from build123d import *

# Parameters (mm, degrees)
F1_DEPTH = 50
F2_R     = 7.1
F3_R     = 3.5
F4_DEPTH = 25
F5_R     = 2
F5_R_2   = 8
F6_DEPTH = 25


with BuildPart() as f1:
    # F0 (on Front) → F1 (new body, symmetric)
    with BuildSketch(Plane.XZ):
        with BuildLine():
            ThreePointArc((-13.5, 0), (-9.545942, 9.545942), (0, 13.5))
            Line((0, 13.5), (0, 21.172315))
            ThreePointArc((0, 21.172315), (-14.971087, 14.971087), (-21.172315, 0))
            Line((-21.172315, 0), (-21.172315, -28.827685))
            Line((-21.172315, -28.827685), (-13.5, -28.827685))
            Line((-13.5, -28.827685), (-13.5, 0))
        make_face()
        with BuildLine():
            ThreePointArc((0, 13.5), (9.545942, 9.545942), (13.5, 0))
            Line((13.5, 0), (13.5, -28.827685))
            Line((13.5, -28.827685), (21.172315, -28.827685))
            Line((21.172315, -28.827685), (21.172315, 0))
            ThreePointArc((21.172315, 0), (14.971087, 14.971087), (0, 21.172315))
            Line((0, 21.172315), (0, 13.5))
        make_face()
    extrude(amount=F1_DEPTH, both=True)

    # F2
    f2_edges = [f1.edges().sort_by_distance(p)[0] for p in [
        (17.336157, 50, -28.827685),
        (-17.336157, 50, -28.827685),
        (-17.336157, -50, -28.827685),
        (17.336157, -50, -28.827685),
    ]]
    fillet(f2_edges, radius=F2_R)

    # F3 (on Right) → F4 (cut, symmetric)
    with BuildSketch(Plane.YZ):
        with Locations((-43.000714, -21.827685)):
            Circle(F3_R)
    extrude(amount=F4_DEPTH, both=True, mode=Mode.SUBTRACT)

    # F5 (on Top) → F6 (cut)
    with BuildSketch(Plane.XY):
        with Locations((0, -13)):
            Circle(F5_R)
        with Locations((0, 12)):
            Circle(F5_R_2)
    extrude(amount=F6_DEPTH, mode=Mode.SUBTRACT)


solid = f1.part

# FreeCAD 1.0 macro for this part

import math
import FreeCAD as App
import Part
import Sketcher
from FreeCAD import Vector
Q = App.Units.Quantity


def edges_at(feature, points):
    """Names of the edges that pass closest to the given points."""
    edges = feature.Shape.Edges
    near = lambda p: min(range(len(edges)), key=lambda i: edges[i].distToShape(Part.Vertex(*p))[0])
    return sorted({f"Edge{near(p) + 1}" for p in points})

doc = App.newDocument("Part")
body = doc.addObject("PartDesign::Body", "Body")

# Sketch on XZ plane
sketch1 = doc.addObject("Sketcher::SketchObject", "Sketch")
body.addObject(sketch1)
sketch1.AttachmentSupport = (doc.XZ_Plane, [""])
sketch1.MapMode = "FlatFace"
sketch1.addGeometry(Part.ArcOfCircle(Part.Circle(Vector(-0.000002, 0.000002, 0), Vector(0, 0, 1), 13.499998), math.radians(89.999993), math.radians(180.000007)), False)
sketch1.addGeometry(Part.ArcOfCircle(Part.Circle(Vector(0.000002, 0.000002, 0), Vector(0, 0, 1), 13.499998), math.radians(-0.000007), math.radians(90.000007)), False)
sketch1.addGeometry(Part.LineSegment(Vector(13.5, 0, 0), Vector(13.5, -28.827685, 0)), False)
sketch1.addGeometry(Part.LineSegment(Vector(13.5, -28.827685, 0), Vector(21.172315, -28.827685, 0)), False)
sketch1.addGeometry(Part.LineSegment(Vector(21.172315, -28.827685, 0), Vector(21.172315, 0, 0)), False)
sketch1.addGeometry(Part.ArcOfCircle(Part.Circle(Vector(-0.000002, -0.000002, 0), Vector(0, 0, 1), 21.172317), math.radians(0.000005), math.radians(89.999995)), False)
sketch1.addGeometry(Part.ArcOfCircle(Part.Circle(Vector(0.000002, -0.000002, 0), Vector(0, 0, 1), 21.172317), math.radians(90.000005), math.radians(179.999995)), False)
sketch1.addGeometry(Part.LineSegment(Vector(-21.172315, 0, 0), Vector(-21.172315, -28.827685, 0)), False)
sketch1.addGeometry(Part.LineSegment(Vector(-21.172315, -28.827685, 0), Vector(-13.5, -28.827685, 0)), False)
sketch1.addGeometry(Part.LineSegment(Vector(-13.5, -28.827685, 0), Vector(-13.5, 0, 0)), False)
sketch1.addConstraint(Sketcher.Constraint("Tangent", 0, 1, 1, 2))
sketch1.addConstraint(Sketcher.Constraint("Tangent", 1, 1, 2, 1))
sketch1.addConstraint(Sketcher.Constraint("Coincident", 2, 2, 3, 1))
sketch1.addConstraint(Sketcher.Constraint("Coincident", 3, 2, 4, 1))
sketch1.addConstraint(Sketcher.Constraint("Tangent", 4, 2, 5, 1))
sketch1.addConstraint(Sketcher.Constraint("Tangent", 5, 2, 6, 1))
sketch1.addConstraint(Sketcher.Constraint("Tangent", 6, 2, 7, 1))
sketch1.addConstraint(Sketcher.Constraint("Coincident", 7, 2, 8, 1))
sketch1.addConstraint(Sketcher.Constraint("Coincident", 8, 2, 9, 1))
sketch1.addConstraint(Sketcher.Constraint("Tangent", 9, 2, 0, 2))
sketch1.addConstraint(Sketcher.Constraint("Vertical", 2))
sketch1.addConstraint(Sketcher.Constraint("Horizontal", 3))
sketch1.addConstraint(Sketcher.Constraint("Vertical", 4))
sketch1.addConstraint(Sketcher.Constraint("Vertical", 7))
sketch1.addConstraint(Sketcher.Constraint("Horizontal", 8))
sketch1.addConstraint(Sketcher.Constraint("Vertical", 9))
sketch1.addConstraint(Sketcher.Constraint("Coincident", 0, 3, -1, 1))
sketch1.addConstraint(Sketcher.Constraint("Coincident", 5, 3, -1, 1))
sketch1.addConstraint(Sketcher.Constraint("Equal", 0, 1))
sketch1.addConstraint(Sketcher.Constraint("Equal", 5, 6))
sketch1.addConstraint(Sketcher.Constraint("PointOnObject", 0, 1, -2))
sketch1.addConstraint(Sketcher.Constraint("PointOnObject", 5, 2, -2))
sketch1.addConstraint(Sketcher.Constraint("Horizontal", 3, 2, 7, 2))
sketch1.addConstraint(Sketcher.Constraint("Radius", 0, Q("13.499998 mm")))
sketch1.addConstraint(Sketcher.Constraint("Radius", 5, Q("21.172317 mm")))
sketch1.addConstraint(Sketcher.Constraint("DistanceY", 2, 2, 2, 1, Q("28.827685 mm")))
pad1 = doc.addObject("PartDesign::Pad", "Pad")
body.addObject(pad1)
pad1.Profile = sketch1
pad1.Length = 100
pad1.Midplane = True
doc.recompute()

fillet = doc.addObject("PartDesign::Fillet", "Fillet")
body.addObject(fillet)
fillet.Base = (pad1, edges_at(pad1, [
    (17.336, 50, -28.828),
    (-17.336, 50, -28.828),
    (-17.336, -50, -28.828),
    (17.336, -50, -28.828),
]))
fillet.Radius = 7.1

# Sketch on YZ plane
sketch2 = doc.addObject("Sketcher::SketchObject", "Sketch001")
body.addObject(sketch2)
sketch2.AttachmentSupport = (doc.YZ_Plane, [""])
sketch2.MapMode = "FlatFace"
sketch2.addGeometry(Part.Circle(Vector(-43.000714, -21.827685, 0), Vector(0, 0, 1), 3.5), False)
sketch2.addConstraint(Sketcher.Constraint("Diameter", 0, Q("7 mm")))
sketch2.addConstraint(Sketcher.Constraint("DistanceX", 0, 3, -1, 1, Q("43.000714 mm")))
sketch2.addConstraint(Sketcher.Constraint("DistanceY", 0, 3, -1, 1, Q("21.827685 mm")))
pocket1 = doc.addObject("PartDesign::Pocket", "Pocket")
body.addObject(pocket1)
pocket1.Profile = sketch2
pocket1.Length = 50
pocket1.Midplane = True

# Sketch on XY plane
sketch3 = doc.addObject("Sketcher::SketchObject", "Sketch002")
body.addObject(sketch3)
sketch3.AttachmentSupport = (doc.XY_Plane, [""])
sketch3.MapMode = "FlatFace"
sketch3.addGeometry(Part.Circle(Vector(0, -13, 0), Vector(0, 0, 1), 2), False)
sketch3.addGeometry(Part.Circle(Vector(0, 12, 0), Vector(0, 0, 1), 8), False)
sketch3.addConstraint(Sketcher.Constraint("PointOnObject", 0, 3, -2))
sketch3.addConstraint(Sketcher.Constraint("PointOnObject", 1, 3, -2))
sketch3.addConstraint(Sketcher.Constraint("Diameter", 0, Q("4 mm")))
sketch3.addConstraint(Sketcher.Constraint("Diameter", 1, Q("16 mm")))
sketch3.addConstraint(Sketcher.Constraint("DistanceY", 0, 3, -1, 1, Q("13 mm")))
sketch3.addConstraint(Sketcher.Constraint("DistanceY", -1, 1, 1, 3, Q("12 mm")))
pocket2 = doc.addObject("PartDesign::Pocket", "Pocket001")
body.addObject(pocket2)
pocket2.Profile = sketch3
pocket2.Length = 25
pocket2.Reversed = True

doc.recompute()
